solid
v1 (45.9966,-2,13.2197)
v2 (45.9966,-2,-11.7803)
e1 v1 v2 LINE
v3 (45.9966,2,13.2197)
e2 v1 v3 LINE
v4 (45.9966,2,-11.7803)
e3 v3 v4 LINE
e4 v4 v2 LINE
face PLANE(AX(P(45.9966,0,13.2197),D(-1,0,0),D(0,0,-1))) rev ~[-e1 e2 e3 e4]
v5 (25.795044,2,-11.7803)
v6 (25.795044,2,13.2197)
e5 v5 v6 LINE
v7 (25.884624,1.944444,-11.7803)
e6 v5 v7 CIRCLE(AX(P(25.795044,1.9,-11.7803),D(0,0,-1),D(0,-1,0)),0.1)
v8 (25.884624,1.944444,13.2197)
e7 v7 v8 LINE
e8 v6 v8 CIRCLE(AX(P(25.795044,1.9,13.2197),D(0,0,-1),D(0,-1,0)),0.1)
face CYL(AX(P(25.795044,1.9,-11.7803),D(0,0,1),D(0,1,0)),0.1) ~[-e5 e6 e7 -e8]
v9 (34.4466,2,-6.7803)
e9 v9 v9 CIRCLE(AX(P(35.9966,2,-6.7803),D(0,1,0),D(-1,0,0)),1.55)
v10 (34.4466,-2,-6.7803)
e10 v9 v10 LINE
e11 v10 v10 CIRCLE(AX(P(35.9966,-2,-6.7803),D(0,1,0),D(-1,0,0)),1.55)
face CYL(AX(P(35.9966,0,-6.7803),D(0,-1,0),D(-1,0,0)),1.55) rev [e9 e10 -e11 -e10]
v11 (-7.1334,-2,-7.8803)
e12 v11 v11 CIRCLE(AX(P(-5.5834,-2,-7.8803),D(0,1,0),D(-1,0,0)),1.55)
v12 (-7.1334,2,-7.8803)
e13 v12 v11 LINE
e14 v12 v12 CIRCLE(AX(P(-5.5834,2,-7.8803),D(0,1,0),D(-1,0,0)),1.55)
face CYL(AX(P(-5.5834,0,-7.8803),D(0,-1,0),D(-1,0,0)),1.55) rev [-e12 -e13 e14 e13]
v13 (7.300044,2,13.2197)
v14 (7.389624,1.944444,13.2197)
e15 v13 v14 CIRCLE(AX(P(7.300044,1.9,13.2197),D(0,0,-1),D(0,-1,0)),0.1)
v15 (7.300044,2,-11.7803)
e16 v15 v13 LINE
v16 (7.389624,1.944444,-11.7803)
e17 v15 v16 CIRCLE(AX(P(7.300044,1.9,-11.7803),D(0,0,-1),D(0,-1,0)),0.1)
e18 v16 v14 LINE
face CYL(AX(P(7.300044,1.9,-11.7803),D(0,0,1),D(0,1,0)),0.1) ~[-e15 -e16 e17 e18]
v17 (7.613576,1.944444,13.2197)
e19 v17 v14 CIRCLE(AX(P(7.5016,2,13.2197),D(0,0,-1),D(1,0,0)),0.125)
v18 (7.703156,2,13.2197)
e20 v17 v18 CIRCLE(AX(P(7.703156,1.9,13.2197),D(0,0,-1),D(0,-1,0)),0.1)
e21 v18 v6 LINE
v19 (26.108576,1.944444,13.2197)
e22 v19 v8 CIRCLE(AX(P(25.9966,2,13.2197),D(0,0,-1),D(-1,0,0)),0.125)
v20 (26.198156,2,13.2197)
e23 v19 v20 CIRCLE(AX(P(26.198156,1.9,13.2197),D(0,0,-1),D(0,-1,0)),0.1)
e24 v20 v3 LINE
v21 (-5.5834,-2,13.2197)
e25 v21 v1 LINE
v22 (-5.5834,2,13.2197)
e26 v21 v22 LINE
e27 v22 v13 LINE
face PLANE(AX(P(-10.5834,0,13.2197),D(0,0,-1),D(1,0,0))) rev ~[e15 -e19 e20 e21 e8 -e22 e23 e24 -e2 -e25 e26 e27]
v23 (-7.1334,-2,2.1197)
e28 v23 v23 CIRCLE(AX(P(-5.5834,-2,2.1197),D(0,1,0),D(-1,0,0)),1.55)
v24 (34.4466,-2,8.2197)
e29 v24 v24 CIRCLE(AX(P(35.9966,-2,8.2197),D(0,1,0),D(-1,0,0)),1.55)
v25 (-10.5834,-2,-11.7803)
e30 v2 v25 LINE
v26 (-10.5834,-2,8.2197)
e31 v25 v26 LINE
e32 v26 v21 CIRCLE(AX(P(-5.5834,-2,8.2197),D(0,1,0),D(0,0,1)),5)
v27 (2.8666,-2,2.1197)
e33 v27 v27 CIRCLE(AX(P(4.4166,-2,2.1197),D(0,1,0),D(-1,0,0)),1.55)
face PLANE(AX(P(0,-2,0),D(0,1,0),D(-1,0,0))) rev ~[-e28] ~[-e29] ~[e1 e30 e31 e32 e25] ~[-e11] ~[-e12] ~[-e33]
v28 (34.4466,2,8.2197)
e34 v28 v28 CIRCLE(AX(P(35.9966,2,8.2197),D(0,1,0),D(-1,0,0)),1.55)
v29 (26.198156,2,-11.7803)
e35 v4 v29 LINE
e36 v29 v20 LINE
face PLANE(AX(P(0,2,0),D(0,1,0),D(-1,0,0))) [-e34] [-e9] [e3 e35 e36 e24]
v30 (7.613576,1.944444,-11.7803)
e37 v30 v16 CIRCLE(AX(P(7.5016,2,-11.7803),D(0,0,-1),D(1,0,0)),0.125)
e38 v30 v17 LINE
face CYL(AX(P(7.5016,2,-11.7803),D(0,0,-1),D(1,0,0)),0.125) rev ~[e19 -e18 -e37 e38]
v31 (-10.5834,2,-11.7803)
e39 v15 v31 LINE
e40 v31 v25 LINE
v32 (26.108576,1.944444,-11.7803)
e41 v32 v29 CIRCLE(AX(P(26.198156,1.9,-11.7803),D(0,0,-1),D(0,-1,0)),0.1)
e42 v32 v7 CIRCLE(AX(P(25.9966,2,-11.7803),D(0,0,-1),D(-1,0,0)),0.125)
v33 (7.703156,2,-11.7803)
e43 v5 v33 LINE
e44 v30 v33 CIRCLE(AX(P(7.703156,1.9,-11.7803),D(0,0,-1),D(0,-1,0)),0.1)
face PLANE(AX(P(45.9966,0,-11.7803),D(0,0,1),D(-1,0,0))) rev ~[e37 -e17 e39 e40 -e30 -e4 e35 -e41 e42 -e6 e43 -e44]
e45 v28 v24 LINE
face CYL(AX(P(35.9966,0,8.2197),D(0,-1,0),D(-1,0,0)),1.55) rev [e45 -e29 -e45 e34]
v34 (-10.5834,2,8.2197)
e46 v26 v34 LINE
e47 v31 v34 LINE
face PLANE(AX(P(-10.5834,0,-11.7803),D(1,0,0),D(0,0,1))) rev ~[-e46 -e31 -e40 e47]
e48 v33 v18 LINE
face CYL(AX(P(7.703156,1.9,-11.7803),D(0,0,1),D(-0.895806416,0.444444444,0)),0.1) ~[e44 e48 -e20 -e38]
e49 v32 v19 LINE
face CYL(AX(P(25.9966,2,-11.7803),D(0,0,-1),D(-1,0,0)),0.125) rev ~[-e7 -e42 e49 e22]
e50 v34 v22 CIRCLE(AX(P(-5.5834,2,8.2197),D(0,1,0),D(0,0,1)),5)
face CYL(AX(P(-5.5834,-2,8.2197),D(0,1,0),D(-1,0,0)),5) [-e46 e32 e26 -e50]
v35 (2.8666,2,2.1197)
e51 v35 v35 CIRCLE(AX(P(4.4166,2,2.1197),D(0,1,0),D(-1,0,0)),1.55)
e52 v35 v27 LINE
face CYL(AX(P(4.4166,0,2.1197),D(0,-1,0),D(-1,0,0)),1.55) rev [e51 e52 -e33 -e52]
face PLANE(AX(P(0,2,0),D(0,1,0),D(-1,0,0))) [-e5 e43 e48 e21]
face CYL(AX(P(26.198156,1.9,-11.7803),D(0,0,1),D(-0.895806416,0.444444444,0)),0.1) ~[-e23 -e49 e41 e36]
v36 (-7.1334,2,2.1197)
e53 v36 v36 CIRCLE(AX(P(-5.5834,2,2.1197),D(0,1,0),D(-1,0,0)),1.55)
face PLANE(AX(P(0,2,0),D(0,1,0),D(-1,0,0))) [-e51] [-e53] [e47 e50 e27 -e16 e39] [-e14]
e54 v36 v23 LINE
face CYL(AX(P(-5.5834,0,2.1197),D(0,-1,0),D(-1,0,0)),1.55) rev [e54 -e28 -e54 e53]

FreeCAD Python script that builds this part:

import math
import FreeCAD as App
import Part
import Sketcher
Q = App.Units.Quantity


def edges_at(feature, points):
    """Names of the edges that pass closest to the given points."""
    edges = feature.Shape.Edges
    near = lambda p: min(range(len(edges)), key=lambda i: edges[i].distToShape(Part.Vertex(*p))[0])
    return sorted({f"Edge{near(p) + 1}" for p in points})


def add_polygon(sketch, points):
    """Adds a closed chain of lines whose ends are joined by coincident constraints."""
    first, n = sketch.GeometryCount, len(points)
    for a, b in zip(points, points[1:] + points[:1]):
        sketch.addGeometry(Part.LineSegment(App.Vector(*a, 0), App.Vector(*b, 0)), False)
    for i in range(n):
        sketch.addConstraint(Sketcher.Constraint("Coincident", first + i, 2, first + (i + 1) % n, 1))

doc = App.newDocument("Part")
body = doc.addObject("PartDesign::Body", "Body")

# Sketch on XZ plane
sketch1 = body.newObject("Sketcher::SketchObject", "Sketch")
sketch1.AttachmentSupport = (doc.getObject("XZ_Plane"), [""])
sketch1.MapMode = "FlatFace"
add_polygon(sketch1, [(-10.6, -11.8), (-10.6, 13.2), (46, 13.2), (46, -11.8)])  # lines 0-3
sketch1.addGeometry(Part.Circle(App.Vector(36, -6.8, 0), App.Vector(0, 0, 1), 1.6), False)  # 4
sketch1.addGeometry(Part.Circle(App.Vector(-5.6, -7.9, 0), App.Vector(0, 0, 1), 1.6), False)  # 5
sketch1.addGeometry(Part.Circle(App.Vector(36, 8.2, 0), App.Vector(0, 0, 1), 1.6), False)  # 6
sketch1.addGeometry(Part.Circle(App.Vector(4.4, 2.1, 0), App.Vector(0, 0, 1), 1.6), False)  # 7
sketch1.addGeometry(Part.Circle(App.Vector(-5.6, 2.1, 0), App.Vector(0, 0, 1), 1.6), False)  # 8
sketch1.addConstraint([
    Sketcher.Constraint("Vertical", 0),
    Sketcher.Constraint("Horizontal", 1),
    Sketcher.Constraint("Vertical", 2),
    Sketcher.Constraint("Horizontal", 3),
    Sketcher.Constraint("Equal", 4, 5),
    Sketcher.Constraint("Equal", 5, 6),
    Sketcher.Constraint("Equal", 6, 7),
    Sketcher.Constraint("Equal", 7, 8),
    Sketcher.Constraint("Horizontal", 7, 3, 8, 3),
    Sketcher.Constraint("Vertical", 4, 3, 6, 3),
    Sketcher.Constraint("Vertical", 5, 3, 8, 3),
    Sketcher.Constraint("Diameter", 4, Q("3.1 mm")),
    Sketcher.Constraint("DistanceY", 0, 1, 0, 2, Q("25 mm")),
    Sketcher.Constraint("DistanceY", 4, 3, 6, 3, Q("15 mm")),
    Sketcher.Constraint("DistanceX", 5, 3, 7, 3, Q("10 mm")),
    Sketcher.Constraint("DistanceY", 5, 3, 7, 3, Q("10 mm")),
    Sketcher.Constraint("DistanceX", 0, 2, 8, 3, Q("5 mm")),
    Sketcher.Constraint("DistanceY", 6, 3, 0, 2, Q("5 mm")),
    Sketcher.Constraint("DistanceX", 6, 3, 1, 2, Q("10 mm")),
    Sketcher.Constraint("DistanceX", 1, 1, 1, 2, Q("56.58 mm")),
    Sketcher.Constraint("DistanceY", 2, 2, 5, 3, Q("3.9 mm")),
    Sketcher.Constraint("DistanceX", -1, 1, 4, 3, Q("35.9966 mm")),
    Sketcher.Constraint("DistanceY", 4, 3, -1, 1, Q("6.7803 mm")),
])
pad1 = body.newObject("PartDesign::Pad", "Pad")
pad1.Profile = sketch1
pad1.Length = 4
pad1.Midplane = True

# Sketch on XY plane
sketch2 = body.newObject("Sketcher::SketchObject", "Sketch001")
sketch2.AttachmentSupport = (doc.getObject("XY_Plane"), [""])
sketch2.MapMode = "FlatFace"
sketch2.AttachmentOffset = App.Placement(App.Vector(0, 0, -11.7803), App.Rotation())
sketch2.addGeometry([
    Part.LineSegment(App.Vector(7.38, 2, 0), App.Vector(7.63, 2, 0)),
    Part.ArcOfCircle(Part.Circle(App.Vector(7.5, 2, 0), App.Vector(0, 0, 1), 0.12), math.radians(180), math.radians(360)),
    Part.ArcOfCircle(Part.Circle(App.Vector(26, 2, 0), App.Vector(0, 0, 1), 0.12), math.radians(180), math.radians(360)),
    Part.LineSegment(App.Vector(25.87, 2, 0), App.Vector(26.12, 2, 0)),
], False)
sketch2.addConstraint([
    Sketcher.Constraint("Coincident", 0, 1, 1, 1),
    Sketcher.Constraint("Coincident", 1, 2, 0, 2),
    Sketcher.Constraint("Coincident", 2, 1, 3, 1),
    Sketcher.Constraint("Coincident", 3, 2, 2, 2),
    Sketcher.Constraint("Horizontal", 0),
    Sketcher.Constraint("Horizontal", 3),
    Sketcher.Constraint("Equal", 1, 2),
    Sketcher.Constraint("Horizontal", 1, 3, 2, 3),
    Sketcher.Constraint("Horizontal", 2, 3, 0, 1),
    Sketcher.Constraint("Horizontal", 1, 2, 2, 1),
    Sketcher.Constraint("Radius", 1, Q("0.125 mm")),
    Sketcher.Constraint("DistanceY", -1, 1, 1, 3, Q("2 mm")),
    Sketcher.Constraint("DistanceX", 0, 1, 2, 3, Q("18.62 mm")),
    Sketcher.Constraint("DistanceX", -1, 1, 1, 3, Q("7.5016 mm")),
])
pocket1 = body.newObject("PartDesign::Pocket", "Pocket")
pocket1.Profile = sketch2
pocket1.Length = 25
pocket1.Reversed = True
doc.recompute()

fillet = body.newObject("PartDesign::Fillet", "Fillet")
fillet.Base = (pocket1, edges_at(pocket1, [
    (7.627, 2, 0.72),
    (7.377, 2, 0.72),
    (26.122, 2, 0.72),
    (25.872, 2, 0.72),
]))
fillet.Radius = 0.1
doc.recompute()

fillet2 = body.newObject("PartDesign::Fillet", "Fillet001")
fillet2.Base = (fillet, edges_at(fillet, [(-10.583, 0, 13.22)]))
fillet2.Radius = 5

doc.recompute()
